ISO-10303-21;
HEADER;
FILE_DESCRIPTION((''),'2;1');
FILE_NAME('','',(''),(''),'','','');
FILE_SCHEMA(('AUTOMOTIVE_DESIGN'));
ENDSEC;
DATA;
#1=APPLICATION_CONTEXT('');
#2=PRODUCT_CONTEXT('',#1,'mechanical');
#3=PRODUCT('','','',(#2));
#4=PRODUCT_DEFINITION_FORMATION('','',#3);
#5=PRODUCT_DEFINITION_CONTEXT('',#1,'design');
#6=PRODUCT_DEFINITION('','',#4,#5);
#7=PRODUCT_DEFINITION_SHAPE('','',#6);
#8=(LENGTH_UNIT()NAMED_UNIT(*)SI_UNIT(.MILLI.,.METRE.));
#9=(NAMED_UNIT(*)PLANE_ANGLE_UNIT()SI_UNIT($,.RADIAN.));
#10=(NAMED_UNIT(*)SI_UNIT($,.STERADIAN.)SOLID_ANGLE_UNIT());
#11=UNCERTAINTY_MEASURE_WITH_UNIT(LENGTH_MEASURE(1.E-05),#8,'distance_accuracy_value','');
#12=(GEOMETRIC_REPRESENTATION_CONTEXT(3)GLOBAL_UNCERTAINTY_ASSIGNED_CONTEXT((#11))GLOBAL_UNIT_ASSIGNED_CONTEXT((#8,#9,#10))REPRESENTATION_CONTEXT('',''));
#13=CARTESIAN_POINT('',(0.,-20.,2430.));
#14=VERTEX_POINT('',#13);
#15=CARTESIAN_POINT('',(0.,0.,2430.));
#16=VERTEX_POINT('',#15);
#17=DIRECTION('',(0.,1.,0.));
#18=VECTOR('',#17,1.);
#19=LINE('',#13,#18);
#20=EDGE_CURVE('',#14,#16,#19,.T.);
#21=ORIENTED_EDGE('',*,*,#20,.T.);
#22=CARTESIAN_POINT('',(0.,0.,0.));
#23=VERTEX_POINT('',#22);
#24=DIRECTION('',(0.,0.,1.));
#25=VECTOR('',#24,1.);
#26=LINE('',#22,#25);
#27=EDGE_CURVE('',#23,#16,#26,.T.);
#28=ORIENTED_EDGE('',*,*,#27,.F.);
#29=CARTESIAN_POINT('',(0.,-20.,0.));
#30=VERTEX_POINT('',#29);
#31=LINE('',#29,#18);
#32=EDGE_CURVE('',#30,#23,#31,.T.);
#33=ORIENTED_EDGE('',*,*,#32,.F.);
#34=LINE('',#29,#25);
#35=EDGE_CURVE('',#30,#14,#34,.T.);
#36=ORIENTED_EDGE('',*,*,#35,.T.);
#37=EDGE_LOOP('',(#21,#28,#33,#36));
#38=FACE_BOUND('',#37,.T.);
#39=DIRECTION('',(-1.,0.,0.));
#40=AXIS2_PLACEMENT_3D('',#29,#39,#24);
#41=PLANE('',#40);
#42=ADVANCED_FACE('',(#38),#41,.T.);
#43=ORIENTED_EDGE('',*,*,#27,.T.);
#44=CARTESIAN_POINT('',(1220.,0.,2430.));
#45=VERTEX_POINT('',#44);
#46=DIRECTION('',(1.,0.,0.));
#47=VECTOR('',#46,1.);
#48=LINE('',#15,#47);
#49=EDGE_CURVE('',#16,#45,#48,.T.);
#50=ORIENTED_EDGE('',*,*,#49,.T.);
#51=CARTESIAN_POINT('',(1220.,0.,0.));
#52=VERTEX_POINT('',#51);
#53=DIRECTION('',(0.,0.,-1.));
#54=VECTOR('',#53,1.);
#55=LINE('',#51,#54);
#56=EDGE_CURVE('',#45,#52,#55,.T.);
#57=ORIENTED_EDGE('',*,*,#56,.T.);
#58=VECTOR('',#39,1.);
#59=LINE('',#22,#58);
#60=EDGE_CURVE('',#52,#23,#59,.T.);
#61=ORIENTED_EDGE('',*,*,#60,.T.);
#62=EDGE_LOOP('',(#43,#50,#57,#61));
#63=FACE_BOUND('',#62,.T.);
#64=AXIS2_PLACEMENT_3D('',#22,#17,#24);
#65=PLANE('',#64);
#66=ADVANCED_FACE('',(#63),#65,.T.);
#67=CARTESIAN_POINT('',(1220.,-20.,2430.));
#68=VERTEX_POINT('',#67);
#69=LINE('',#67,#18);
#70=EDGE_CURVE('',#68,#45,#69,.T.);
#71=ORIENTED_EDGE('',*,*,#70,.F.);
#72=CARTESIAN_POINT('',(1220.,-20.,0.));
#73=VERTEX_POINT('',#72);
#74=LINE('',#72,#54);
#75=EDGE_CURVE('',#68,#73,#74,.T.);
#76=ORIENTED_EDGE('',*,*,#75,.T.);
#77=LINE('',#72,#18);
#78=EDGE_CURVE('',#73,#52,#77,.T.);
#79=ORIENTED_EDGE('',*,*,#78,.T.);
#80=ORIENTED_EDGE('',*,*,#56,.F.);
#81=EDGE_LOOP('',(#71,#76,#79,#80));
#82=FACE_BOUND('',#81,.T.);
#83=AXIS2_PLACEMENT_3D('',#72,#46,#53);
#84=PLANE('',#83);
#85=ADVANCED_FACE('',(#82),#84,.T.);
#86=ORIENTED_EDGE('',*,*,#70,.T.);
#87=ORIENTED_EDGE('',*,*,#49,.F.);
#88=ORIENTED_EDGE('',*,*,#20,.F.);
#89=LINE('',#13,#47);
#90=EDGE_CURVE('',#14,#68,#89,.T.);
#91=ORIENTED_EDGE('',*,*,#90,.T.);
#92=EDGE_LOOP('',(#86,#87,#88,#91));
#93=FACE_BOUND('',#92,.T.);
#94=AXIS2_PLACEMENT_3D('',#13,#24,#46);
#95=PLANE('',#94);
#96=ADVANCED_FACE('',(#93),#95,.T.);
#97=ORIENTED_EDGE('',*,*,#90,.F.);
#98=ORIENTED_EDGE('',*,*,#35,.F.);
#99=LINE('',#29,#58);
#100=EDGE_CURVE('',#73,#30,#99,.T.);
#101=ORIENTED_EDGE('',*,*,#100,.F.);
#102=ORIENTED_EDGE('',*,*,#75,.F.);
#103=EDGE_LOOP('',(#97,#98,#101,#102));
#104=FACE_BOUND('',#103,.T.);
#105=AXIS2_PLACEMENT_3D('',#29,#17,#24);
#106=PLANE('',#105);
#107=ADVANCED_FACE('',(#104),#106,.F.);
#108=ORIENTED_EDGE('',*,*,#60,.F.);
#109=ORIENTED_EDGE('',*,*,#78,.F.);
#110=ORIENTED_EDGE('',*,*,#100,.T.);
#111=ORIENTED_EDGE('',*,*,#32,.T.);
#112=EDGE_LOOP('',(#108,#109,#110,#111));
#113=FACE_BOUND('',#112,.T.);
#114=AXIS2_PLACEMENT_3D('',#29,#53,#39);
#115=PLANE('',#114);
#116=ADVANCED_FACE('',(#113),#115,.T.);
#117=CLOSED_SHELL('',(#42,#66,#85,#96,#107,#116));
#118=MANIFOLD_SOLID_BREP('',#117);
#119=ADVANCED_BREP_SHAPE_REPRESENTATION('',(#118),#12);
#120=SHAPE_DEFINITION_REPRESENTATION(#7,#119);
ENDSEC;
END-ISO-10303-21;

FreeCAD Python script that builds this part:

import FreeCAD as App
import Part
import Sketcher

V = App.Vector


def add_polygon(sketch, points):
    """Adds a closed chain of lines whose ends are joined by coincident constraints."""
    first, n = sketch.GeometryCount, len(points)
    for a, b in zip(points, points[1:] + points[:1]):
        sketch.addGeometry(Part.LineSegment(App.Vector(*a, 0), App.Vector(*b, 0)), False)
    for i in range(n):
        sketch.addConstraint(Sketcher.Constraint("Coincident", first + i, 2, first + (i + 1) % n, 1))

doc = App.newDocument("Part")
body = doc.addObject("PartDesign::Body", "Body")

# Sketch on XZ plane
sketch1 = body.newObject("Sketcher::SketchObject", "Sketch")
sketch1.AttachmentSupport = (doc.getObject("XZ_Plane"), [""])
sketch1.MapMode = "FlatFace"
add_polygon(sketch1, [(0, 0), (0, 2430), (1220, 2430), (1220, 0)])  # lines 0-3
sketch1.addConstraint([
    Sketcher.Constraint("Vertical", 0),
    Sketcher.Constraint("Horizontal", 1),
    Sketcher.Constraint("Vertical", 2),
    Sketcher.Constraint("Horizontal", 3),
    Sketcher.Constraint("Coincident", 3, 2, -1, 1),
    Sketcher.Constraint("DistanceX", 1, 1, 1, 2, 1220.0),
    Sketcher.Constraint("DistanceY", 0, 1, 0, 2, 2430.0),
])
pad1 = body.newObject("PartDesign::Pad", "Pad")
pad1.Profile = sketch1
pad1.Length = 20

doc.recompute()
